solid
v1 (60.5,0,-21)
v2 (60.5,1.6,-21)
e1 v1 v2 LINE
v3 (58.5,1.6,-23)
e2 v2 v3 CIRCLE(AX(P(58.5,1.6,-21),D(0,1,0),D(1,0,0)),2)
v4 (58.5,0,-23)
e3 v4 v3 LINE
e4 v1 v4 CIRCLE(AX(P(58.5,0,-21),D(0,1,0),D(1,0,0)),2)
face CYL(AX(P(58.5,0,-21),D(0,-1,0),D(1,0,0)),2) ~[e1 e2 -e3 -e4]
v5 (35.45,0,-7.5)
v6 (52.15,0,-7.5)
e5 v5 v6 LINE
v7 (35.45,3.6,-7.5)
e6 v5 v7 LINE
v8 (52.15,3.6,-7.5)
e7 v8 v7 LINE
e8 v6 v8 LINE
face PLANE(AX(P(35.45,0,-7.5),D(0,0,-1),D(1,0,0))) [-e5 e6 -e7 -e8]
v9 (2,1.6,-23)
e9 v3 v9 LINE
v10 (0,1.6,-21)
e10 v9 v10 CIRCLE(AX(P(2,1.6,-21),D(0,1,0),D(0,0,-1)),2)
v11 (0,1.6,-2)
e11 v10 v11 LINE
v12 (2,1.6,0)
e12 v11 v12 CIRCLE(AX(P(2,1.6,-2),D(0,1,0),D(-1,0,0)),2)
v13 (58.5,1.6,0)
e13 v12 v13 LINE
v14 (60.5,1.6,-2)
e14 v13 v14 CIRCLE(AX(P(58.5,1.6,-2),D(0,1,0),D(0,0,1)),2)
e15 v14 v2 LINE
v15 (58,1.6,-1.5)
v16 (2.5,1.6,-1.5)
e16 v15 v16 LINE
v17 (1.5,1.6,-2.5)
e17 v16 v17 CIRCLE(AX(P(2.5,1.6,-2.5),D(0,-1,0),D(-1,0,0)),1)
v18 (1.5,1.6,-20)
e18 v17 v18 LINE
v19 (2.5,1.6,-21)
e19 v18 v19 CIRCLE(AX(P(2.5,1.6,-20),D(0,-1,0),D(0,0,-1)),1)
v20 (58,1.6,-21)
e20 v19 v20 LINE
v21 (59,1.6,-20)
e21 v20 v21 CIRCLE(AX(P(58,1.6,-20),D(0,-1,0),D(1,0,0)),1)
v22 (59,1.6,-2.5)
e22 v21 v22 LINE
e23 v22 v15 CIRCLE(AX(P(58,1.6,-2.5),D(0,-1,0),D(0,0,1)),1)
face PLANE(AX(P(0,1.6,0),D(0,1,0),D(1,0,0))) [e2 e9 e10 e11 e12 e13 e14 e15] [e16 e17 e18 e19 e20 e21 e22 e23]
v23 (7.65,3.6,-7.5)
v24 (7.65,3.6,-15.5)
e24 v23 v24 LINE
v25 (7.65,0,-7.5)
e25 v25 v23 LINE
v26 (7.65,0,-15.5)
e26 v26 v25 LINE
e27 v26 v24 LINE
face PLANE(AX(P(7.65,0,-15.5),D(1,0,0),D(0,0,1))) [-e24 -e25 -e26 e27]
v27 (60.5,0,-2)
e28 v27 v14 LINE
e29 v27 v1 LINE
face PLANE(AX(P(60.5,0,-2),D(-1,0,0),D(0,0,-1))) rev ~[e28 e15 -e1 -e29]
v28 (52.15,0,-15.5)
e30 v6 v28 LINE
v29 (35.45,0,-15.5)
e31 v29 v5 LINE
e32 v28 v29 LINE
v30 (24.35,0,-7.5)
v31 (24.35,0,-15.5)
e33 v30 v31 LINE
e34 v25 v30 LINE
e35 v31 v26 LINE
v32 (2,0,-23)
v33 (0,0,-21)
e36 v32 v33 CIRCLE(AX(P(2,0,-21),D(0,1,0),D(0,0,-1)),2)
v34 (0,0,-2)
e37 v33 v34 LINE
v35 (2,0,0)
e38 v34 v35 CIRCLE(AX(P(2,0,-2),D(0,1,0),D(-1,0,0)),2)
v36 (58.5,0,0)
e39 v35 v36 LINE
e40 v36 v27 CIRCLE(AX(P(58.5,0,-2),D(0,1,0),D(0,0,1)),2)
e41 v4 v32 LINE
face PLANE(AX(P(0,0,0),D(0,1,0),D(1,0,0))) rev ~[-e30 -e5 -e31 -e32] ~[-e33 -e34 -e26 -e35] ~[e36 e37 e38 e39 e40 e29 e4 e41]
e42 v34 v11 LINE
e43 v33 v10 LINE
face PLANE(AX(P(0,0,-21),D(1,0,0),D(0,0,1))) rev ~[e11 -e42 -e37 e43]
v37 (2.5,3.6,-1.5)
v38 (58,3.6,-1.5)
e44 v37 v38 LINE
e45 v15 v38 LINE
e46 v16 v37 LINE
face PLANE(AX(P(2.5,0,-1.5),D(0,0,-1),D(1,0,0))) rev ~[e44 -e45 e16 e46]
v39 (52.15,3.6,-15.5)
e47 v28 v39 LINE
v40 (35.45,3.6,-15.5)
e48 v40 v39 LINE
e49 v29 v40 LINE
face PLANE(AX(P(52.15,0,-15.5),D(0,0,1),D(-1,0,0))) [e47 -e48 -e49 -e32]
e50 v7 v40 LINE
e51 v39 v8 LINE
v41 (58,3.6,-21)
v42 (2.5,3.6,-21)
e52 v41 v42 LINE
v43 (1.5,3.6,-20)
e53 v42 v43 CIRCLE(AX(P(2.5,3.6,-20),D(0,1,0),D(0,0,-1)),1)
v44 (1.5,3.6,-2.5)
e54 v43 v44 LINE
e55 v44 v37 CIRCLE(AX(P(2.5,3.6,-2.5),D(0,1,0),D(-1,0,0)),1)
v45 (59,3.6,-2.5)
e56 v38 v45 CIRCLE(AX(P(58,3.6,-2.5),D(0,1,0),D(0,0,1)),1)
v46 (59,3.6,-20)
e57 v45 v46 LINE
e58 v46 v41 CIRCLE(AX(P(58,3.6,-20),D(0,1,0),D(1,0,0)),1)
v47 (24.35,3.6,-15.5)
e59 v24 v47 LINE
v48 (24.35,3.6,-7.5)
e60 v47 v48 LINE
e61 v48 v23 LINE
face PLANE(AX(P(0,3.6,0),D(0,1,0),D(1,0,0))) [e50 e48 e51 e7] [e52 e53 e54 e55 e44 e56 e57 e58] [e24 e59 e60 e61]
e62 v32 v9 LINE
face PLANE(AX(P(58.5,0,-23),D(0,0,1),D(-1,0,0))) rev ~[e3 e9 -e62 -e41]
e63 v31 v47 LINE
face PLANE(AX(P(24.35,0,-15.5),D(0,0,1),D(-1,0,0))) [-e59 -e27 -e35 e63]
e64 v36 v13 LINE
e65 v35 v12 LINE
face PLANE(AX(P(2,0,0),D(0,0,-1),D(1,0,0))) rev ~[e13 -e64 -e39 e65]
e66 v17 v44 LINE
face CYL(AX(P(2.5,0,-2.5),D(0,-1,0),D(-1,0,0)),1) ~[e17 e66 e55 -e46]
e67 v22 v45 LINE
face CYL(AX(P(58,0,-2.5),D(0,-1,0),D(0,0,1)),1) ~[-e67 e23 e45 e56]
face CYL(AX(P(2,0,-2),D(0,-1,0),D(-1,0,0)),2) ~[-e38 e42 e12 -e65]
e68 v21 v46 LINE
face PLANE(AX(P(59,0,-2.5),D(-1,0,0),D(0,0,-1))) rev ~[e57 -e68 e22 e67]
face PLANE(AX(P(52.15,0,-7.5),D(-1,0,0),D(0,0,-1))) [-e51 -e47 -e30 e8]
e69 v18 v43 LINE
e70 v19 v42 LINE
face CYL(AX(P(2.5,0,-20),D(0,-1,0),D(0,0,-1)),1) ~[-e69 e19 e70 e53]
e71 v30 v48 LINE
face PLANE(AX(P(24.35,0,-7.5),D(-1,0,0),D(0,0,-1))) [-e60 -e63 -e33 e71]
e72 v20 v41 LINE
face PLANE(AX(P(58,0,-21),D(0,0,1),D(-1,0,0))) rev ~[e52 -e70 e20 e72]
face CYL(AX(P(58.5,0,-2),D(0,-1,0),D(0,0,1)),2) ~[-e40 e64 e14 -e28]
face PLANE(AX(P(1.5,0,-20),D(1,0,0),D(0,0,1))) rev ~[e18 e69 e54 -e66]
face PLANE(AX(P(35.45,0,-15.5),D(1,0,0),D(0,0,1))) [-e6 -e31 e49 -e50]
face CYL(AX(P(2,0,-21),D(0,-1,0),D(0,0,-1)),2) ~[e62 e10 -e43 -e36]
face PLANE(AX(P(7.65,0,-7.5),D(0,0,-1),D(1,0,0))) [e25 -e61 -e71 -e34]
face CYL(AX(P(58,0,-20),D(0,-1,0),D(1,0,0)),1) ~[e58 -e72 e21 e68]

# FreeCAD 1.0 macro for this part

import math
import FreeCAD as App
import Part
import Sketcher


def add_polygon(sketch, points):
    """Adds a closed chain of lines whose ends are joined by coincident constraints."""
    first, n = sketch.GeometryCount, len(points)
    for a, b in zip(points, points[1:] + points[:1]):
        sketch.addGeometry(Part.LineSegment(App.Vector(*a, 0), App.Vector(*b, 0)), False)
    for i in range(n):
        sketch.addConstraint(Sketcher.Constraint("Coincident", first + i, 2, first + (i + 1) % n, 1))

doc = App.newDocument("Part")
params = doc.addObject("Spreadsheet::Sheet", "Params")
for row, (alias, value) in enumerate([
    ("sketch1_radius", "2 mm"),
    ("pad1_length", "1.6 mm"),
    ("sketch2_radius", "1 mm"),
    ("sketch2_width", "55.5 mm"),
    ("pad2_length", "3.6 mm"),
    ("sketch3_height", "8 mm"),
    ("sketch3_width", "16.7 mm"),
    ("pocket1_length", "20 mm"),
], start=1):
    params.set(f"A{row}", alias)
    params.set(f"B{row}", "=" + value)
    params.setAlias(f"B{row}", alias)

body = doc.addObject("PartDesign::Body", "Body")

sketch1 = doc.addObject("Sketcher::SketchObject", "Sketch")
body.addObject(sketch1)
sketch1.AttachmentSupport = (doc.XZ_Plane, [""])
sketch1.MapMode = "FlatFace"
sketch1.addGeometry([
    Part.LineSegment(App.Vector(0, -21, 0), App.Vector(0, -2, 0)),
    Part.ArcOfCircle(Part.Circle(App.Vector(2, -2, 0), App.Vector(0, 0, 1), 2), math.radians(90), math.radians(180)),
    Part.LineSegment(App.Vector(2, 0, 0), App.Vector(58.5, 0, 0)),
    Part.ArcOfCircle(Part.Circle(App.Vector(58.5, -2, 0), App.Vector(0, 0, 1), 2), math.radians(0), math.radians(90)),
    Part.LineSegment(App.Vector(60.5, -2, 0), App.Vector(60.5, -21, 0)),
    Part.ArcOfCircle(Part.Circle(App.Vector(58.5, -21, 0), App.Vector(0, 0, 1), 2), math.radians(-90), math.radians(0)),
    Part.LineSegment(App.Vector(58.5, -23, 0), App.Vector(2, -23, 0)),
    Part.ArcOfCircle(Part.Circle(App.Vector(2, -21, 0), App.Vector(0, 0, 1), 2), math.radians(180), math.radians(270)),
], False)
sketch1.addConstraint([
    Sketcher.Constraint("Tangent", 0, 2, 1, 2),
    Sketcher.Constraint("Tangent", 1, 1, 2, 1),
    Sketcher.Constraint("Tangent", 2, 2, 3, 2),
    Sketcher.Constraint("Tangent", 3, 1, 4, 1),
    Sketcher.Constraint("Tangent", 4, 2, 5, 2),
    Sketcher.Constraint("Tangent", 5, 1, 6, 1),
    Sketcher.Constraint("Tangent", 6, 2, 7, 2),
    Sketcher.Constraint("Tangent", 7, 1, 0, 1),
    Sketcher.Constraint("Vertical", 0),
    Sketcher.Constraint("Horizontal", 2),
    Sketcher.Constraint("Vertical", 4),
    Sketcher.Constraint("Horizontal", 6),
    Sketcher.Constraint("Equal", 1, 3),
    Sketcher.Constraint("Equal", 3, 5),
    Sketcher.Constraint("Equal", 5, 7),
    Sketcher.Constraint("PointOnObject", 0, 2, -2),
    Sketcher.Constraint("PointOnObject", 1, 1, -1),
    Sketcher.Constraint("Radius", 1, 2.0),
    Sketcher.Constraint("DistanceY", 5, 1, -1, 1, 23.0),
    Sketcher.Constraint("DistanceX", -1, 1, 3, 1, 60.5),
])
sketch1.setExpression("Constraints[17]", "Params.sketch1_radius")
pad1 = doc.addObject("PartDesign::Pad", "Pad")
body.addObject(pad1)
pad1.Profile = sketch1
pad1.setExpression("Length", "Params.pad1_length")
pad1.Reversed = True

sketch2 = doc.addObject("Sketcher::SketchObject", "Sketch001")
body.addObject(sketch2)
sketch2.AttachmentSupport = (doc.XZ_Plane, [""])
sketch2.MapMode = "FlatFace"
sketch2.addGeometry([
    Part.ArcOfCircle(Part.Circle(App.Vector(2.5, -2.5, 0), App.Vector(0, 0, 1), 1), math.radians(90), math.radians(180)),
    Part.LineSegment(App.Vector(2.5, -1.5, 0), App.Vector(58, -1.5, 0)),
    Part.ArcOfCircle(Part.Circle(App.Vector(58, -2.5, 0), App.Vector(0, 0, 1), 1), math.radians(0), math.radians(90)),
    Part.LineSegment(App.Vector(59, -2.5, 0), App.Vector(59, -20, 0)),
    Part.ArcOfCircle(Part.Circle(App.Vector(58, -20, 0), App.Vector(0, 0, 1), 1), math.radians(-90), math.radians(0)),
    Part.LineSegment(App.Vector(58, -21, 0), App.Vector(2.5, -21, 0)),
    Part.ArcOfCircle(Part.Circle(App.Vector(2.5, -20, 0), App.Vector(0, 0, 1), 1), math.radians(180), math.radians(270)),
    Part.LineSegment(App.Vector(1.5, -20, 0), App.Vector(1.5, -2.5, 0)),
], False)
sketch2.addConstraint([
    Sketcher.Constraint("Tangent", 0, 1, 1, 1),
    Sketcher.Constraint("Tangent", 1, 2, 2, 2),
    Sketcher.Constraint("Tangent", 2, 1, 3, 1),
    Sketcher.Constraint("Tangent", 3, 2, 4, 2),
    Sketcher.Constraint("Tangent", 4, 1, 5, 1),
    Sketcher.Constraint("Tangent", 5, 2, 6, 2),
    Sketcher.Constraint("Tangent", 6, 1, 7, 1),
    Sketcher.Constraint("Tangent", 7, 2, 0, 2),
    Sketcher.Constraint("Horizontal", 1),
    Sketcher.Constraint("Vertical", 3),
    Sketcher.Constraint("Horizontal", 5),
    Sketcher.Constraint("Vertical", 7),
    Sketcher.Constraint("Equal", 0, 2),
    Sketcher.Constraint("Equal", 2, 4),
    Sketcher.Constraint("Equal", 4, 6),
    Sketcher.Constraint("Radius", 0, 1.0),
    Sketcher.Constraint("DistanceY", 0, 1, -1, 1, 1.5),
    Sketcher.Constraint("DistanceX", -1, 1, 6, 1, 1.5),
    Sketcher.Constraint("DistanceY", 4, 1, 1, 2, 19.5),
    Sketcher.Constraint("DistanceX", 1, 1, 1, 2, 55.5),
])
sketch2.setExpression("Constraints[15]", "Params.sketch2_radius")
sketch2.setExpression("Constraints[19]", "Params.sketch2_width")
pad2 = doc.addObject("PartDesign::Pad", "Pad001")
body.addObject(pad2)
pad2.Profile = sketch2
pad2.setExpression("Length", "Params.pad2_length")
pad2.Reversed = True

sketch3 = doc.addObject("Sketcher::SketchObject", "Sketch002")
body.addObject(sketch3)
sketch3.AttachmentSupport = (doc.XZ_Plane, [""])
sketch3.MapMode = "FlatFace"
add_polygon(sketch3, [(7.65, -15.5), (7.65, -7.5), (24.35, -7.5), (24.35, -15.5)])
add_polygon(sketch3, [(35.45, -15.5), (35.45, -7.5), (52.15, -7.5), (52.15, -15.5)])
sketch3.addConstraint([
    Sketcher.Constraint("Vertical", 0),
    Sketcher.Constraint("Horizontal", 1),
    Sketcher.Constraint("Vertical", 2),
    Sketcher.Constraint("Horizontal", 3),
    Sketcher.Constraint("Vertical", 4),
    Sketcher.Constraint("Horizontal", 5),
    Sketcher.Constraint("Vertical", 6),
    Sketcher.Constraint("Horizontal", 7),
    Sketcher.Constraint("Horizontal", 1, 2, 4, 2),
    Sketcher.Constraint("Horizontal", 3, 2, 6, 2),
    Sketcher.Constraint("Equal", 3, 5),
    Sketcher.Constraint("DistanceY", 0, 1, 0, 2, 8.0),
    Sketcher.Constraint("DistanceX", 1, 1, 1, 2, 16.7),
    Sketcher.Constraint("DistanceY", 0, 2, -1, 1, 7.5),
    Sketcher.Constraint("DistanceX", 1, 2, 4, 2, 11.1),
    Sketcher.Constraint("DistanceX", -1, 1, 0, 2, 7.65),
])
sketch3.setExpression("Constraints[19]", "Params.sketch3_height")
sketch3.setExpression("Constraints[20]", "Params.sketch3_width")
pocket1 = doc.addObject("PartDesign::Pocket", "Pocket")
body.addObject(pocket1)
pocket1.Profile = sketch3
pocket1.setExpression("Length", "Params.pocket1_length")

doc.recompute()
